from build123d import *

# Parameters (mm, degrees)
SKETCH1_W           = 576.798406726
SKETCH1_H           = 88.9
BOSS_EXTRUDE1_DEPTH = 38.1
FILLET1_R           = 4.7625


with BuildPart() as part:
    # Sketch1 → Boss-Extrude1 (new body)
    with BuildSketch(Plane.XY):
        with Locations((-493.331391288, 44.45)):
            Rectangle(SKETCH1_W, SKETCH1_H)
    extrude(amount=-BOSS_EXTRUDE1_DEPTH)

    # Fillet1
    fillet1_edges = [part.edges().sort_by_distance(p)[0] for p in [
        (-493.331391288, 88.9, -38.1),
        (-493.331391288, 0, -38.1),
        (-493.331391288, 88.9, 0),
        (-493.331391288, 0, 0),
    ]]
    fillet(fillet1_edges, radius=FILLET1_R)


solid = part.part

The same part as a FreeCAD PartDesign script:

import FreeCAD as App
import Part
import Sketcher
from FreeCAD import Vector
Q = App.Units.Quantity


def edges_at(feature, points):
    """Names of the edges that pass closest to the given points."""
    edges = feature.Shape.Edges
    near = lambda p: min(range(len(edges)), key=lambda i: edges[i].distToShape(Part.Vertex(*p))[0])
    return sorted({f"Edge{near(p) + 1}" for p in points})


def add_polygon(sketch, points):
    """Adds a closed chain of lines whose ends are joined by coincident constraints."""
    first, n = sketch.GeometryCount, len(points)
    for a, b in zip(points, points[1:] + points[:1]):
        sketch.addGeometry(Part.LineSegment(App.Vector(*a, 0), App.Vector(*b, 0)), False)
    for i in range(n):
        sketch.addConstraint(Sketcher.Constraint("Coincident", first + i, 2, first + (i + 1) % n, 1))

doc = App.newDocument("Part")
body = doc.addObject("PartDesign::Body", "Body")

sketch1 = body.newObject("Sketcher::SketchObject", "Sketch")
sketch1.AttachmentSupport = (doc.getObject("XY_Plane"), [""])
sketch1.MapMode = "FlatFace"
add_polygon(sketch1, [(-781.730595, 88.9), (-781.730595, 0), (-204.932188, 0), (-204.932188, 88.9)])
sketch1.addConstraint([
    Sketcher.Constraint("Vertical", 0),
    Sketcher.Constraint("Horizontal", 1),
    Sketcher.Constraint("Vertical", 2),
    Sketcher.Constraint("Horizontal", 3),
    Sketcher.Constraint("PointOnObject", 0, 2, -1),
    Sketcher.Constraint("DistanceY", 0, 2, 0, 1, Q("3.5 in")),
    Sketcher.Constraint("DistanceX", 1, 1, 1, 2, 576.798407),
    Sketcher.Constraint("DistanceX", 0, 2, -1, 1, 781.730595),
])
pad1 = body.newObject("PartDesign::Pad", "Pad")
pad1.Profile = sketch1
pad1.Length = Q("1.5 in")
pad1.Reversed = True
doc.recompute()

fillet = body.newObject("PartDesign::Fillet", "Fillet")
fillet.Base = (pad1, edges_at(pad1, [
    (-493.331, 88.9, -38.1),
    (-493.331, 0, -38.1),
    (-493.331, 88.9, 0),
    (-493.331, 0, 0),
]))
fillet.Radius = Q("0.1875 in")

doc.recompute()
